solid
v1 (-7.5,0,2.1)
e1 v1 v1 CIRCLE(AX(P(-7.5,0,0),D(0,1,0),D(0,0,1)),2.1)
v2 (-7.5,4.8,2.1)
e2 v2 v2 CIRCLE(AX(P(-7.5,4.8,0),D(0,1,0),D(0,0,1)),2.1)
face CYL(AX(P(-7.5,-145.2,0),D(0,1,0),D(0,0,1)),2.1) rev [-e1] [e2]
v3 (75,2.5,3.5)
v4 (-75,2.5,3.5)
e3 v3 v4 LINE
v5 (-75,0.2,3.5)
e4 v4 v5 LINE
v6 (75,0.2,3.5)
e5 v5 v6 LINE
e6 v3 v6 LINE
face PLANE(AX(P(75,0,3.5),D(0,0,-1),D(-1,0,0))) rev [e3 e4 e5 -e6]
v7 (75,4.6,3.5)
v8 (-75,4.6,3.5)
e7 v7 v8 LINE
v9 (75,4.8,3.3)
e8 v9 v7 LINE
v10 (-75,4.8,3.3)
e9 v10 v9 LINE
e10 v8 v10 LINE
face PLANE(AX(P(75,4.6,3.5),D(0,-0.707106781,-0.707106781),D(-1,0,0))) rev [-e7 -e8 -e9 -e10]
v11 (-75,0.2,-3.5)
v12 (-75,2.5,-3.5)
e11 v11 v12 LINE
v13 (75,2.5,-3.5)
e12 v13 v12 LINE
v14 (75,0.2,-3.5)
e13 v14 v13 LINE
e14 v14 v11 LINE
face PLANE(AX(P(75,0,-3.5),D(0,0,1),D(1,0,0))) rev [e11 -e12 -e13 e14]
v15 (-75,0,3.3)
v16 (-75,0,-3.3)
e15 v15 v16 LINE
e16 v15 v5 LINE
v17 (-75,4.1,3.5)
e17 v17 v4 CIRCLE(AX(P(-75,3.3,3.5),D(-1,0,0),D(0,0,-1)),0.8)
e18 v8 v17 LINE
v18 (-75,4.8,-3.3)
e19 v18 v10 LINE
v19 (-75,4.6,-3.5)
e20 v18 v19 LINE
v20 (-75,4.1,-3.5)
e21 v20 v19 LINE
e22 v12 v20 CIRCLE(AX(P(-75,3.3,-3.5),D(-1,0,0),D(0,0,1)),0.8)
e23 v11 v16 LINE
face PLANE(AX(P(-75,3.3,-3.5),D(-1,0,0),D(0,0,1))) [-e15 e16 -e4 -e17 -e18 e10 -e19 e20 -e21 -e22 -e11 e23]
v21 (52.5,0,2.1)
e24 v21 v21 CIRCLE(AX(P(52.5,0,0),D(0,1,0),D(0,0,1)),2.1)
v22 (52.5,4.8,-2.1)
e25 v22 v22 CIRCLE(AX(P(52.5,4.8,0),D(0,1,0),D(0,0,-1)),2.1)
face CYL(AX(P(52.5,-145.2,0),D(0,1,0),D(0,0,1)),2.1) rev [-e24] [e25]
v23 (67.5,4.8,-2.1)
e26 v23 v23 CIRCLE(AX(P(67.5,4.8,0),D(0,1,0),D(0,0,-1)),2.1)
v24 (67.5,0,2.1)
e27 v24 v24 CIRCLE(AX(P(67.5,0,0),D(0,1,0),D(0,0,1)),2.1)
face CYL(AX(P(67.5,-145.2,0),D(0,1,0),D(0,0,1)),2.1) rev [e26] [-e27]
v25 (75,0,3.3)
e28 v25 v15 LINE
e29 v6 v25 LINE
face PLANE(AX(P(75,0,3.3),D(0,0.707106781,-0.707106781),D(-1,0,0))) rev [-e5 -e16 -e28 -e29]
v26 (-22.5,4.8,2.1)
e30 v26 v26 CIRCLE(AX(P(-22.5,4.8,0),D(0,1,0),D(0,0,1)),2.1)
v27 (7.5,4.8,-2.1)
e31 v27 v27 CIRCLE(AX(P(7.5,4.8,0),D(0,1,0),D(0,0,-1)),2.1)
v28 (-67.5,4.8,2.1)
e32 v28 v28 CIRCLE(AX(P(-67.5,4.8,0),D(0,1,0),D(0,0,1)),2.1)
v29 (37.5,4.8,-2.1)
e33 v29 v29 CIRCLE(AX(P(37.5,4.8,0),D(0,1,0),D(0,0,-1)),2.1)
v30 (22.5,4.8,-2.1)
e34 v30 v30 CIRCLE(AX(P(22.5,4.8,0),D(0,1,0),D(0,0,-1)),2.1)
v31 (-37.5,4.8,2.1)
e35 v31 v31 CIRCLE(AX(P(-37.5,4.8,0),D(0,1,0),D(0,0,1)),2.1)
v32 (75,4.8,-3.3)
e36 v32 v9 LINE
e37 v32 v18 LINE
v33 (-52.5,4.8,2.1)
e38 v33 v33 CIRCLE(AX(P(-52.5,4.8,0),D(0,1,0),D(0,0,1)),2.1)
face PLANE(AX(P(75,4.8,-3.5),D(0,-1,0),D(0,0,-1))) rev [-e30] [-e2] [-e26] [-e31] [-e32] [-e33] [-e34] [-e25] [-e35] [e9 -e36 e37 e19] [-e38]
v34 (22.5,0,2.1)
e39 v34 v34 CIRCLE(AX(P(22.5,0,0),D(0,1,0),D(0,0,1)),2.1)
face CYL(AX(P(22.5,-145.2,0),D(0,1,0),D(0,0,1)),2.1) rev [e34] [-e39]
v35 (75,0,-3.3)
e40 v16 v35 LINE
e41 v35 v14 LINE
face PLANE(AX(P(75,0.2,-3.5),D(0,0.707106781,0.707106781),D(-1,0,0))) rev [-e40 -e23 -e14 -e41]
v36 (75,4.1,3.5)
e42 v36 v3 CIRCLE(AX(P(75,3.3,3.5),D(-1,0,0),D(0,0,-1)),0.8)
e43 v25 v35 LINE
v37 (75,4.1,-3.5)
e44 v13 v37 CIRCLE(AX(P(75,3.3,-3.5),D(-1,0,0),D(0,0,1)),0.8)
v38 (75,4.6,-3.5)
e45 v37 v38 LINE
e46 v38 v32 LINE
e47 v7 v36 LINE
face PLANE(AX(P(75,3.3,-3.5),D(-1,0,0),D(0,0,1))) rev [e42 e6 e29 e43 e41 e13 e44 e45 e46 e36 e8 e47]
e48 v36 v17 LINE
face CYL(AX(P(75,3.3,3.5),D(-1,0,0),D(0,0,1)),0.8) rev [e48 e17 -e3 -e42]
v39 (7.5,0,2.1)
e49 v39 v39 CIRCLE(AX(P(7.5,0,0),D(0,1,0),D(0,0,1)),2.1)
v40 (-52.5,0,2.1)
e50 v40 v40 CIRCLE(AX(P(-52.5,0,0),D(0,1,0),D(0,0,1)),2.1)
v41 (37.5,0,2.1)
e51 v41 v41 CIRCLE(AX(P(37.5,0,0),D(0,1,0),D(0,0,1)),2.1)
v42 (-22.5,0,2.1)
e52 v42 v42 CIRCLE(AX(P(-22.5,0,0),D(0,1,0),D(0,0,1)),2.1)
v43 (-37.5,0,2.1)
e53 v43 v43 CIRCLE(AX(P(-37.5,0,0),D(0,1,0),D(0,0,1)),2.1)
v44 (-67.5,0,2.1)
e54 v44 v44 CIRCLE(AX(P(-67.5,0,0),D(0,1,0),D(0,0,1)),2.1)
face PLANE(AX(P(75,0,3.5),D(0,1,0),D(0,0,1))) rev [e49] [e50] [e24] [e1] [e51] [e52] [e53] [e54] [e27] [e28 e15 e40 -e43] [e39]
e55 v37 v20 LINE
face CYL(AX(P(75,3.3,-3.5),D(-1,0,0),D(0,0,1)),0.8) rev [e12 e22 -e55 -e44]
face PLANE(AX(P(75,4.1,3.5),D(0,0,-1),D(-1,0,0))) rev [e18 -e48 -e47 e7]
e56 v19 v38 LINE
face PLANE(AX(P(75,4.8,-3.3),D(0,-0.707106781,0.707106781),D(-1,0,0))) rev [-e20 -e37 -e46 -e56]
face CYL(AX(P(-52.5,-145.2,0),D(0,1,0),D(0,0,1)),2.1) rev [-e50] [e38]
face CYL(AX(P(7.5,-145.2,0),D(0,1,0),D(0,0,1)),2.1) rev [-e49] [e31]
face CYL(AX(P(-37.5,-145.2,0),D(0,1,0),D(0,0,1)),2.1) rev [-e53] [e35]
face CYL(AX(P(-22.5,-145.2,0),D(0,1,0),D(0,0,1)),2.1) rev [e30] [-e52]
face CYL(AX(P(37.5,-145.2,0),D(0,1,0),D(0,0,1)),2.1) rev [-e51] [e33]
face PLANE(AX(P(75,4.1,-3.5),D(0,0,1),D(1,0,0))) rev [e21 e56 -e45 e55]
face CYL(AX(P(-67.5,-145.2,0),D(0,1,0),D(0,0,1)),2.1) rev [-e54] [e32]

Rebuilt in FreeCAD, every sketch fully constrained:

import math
import FreeCAD as App
import Part
import Sketcher
from FreeCAD import Vector
Q = App.Units.Quantity


def edges_at(feature, points):
    """Names of the edges that pass closest to the given points."""
    edges = feature.Shape.Edges
    near = lambda p: min(range(len(edges)), key=lambda i: edges[i].distToShape(Part.Vertex(*p))[0])
    return sorted({f"Edge{near(p) + 1}" for p in points})

doc = App.newDocument("Part")
body = doc.addObject("PartDesign::Body", "Body")

# Sketch on YZ plane
sketch1 = doc.addObject("Sketcher::SketchObject", "Sketch")
body.addObject(sketch1)
sketch1.AttachmentSupport = (doc.YZ_Plane, [""])
sketch1.MapMode = "FlatFace"
sketch1.addGeometry([
    Part.LineSegment(Vector(0, 3.5, 0), Vector(0, -3.5, 0)),  # 0
    Part.LineSegment(Vector(0, -3.5, 0), Vector(2.5, -3.5, 0)),  # 1
    Part.ArcOfCircle(Part.Circle(Vector(3.3, -3.5, 0), Vector(0, 0, 1), 0.8), math.radians(0), math.radians(180)),  # 2
    Part.LineSegment(Vector(4.1, -3.5, 0), Vector(4.8, -3.5, 0)),  # 3
    Part.LineSegment(Vector(4.8, -3.5, 0), Vector(4.8, 3.5, 0)),  # 4
    Part.LineSegment(Vector(4.8, 3.5, 0), Vector(4.1, 3.5, 0)),  # 5
    Part.ArcOfCircle(Part.Circle(Vector(3.3, 3.5, 0), Vector(0, 0, 1), 0.8), math.radians(180), math.radians(360)),  # 6
    Part.LineSegment(Vector(2.5, 3.5, 0), Vector(0, 3.5, 0)),  # 7
], False)
sketch1.addConstraint([
    Sketcher.Constraint("Coincident", 0, 2, 1, 1),
    Sketcher.Constraint("Coincident", 1, 2, 2, 2),
    Sketcher.Constraint("Coincident", 2, 1, 3, 1),
    Sketcher.Constraint("Coincident", 3, 2, 4, 1),
    Sketcher.Constraint("Coincident", 4, 2, 5, 1),
    Sketcher.Constraint("Coincident", 5, 2, 6, 2),
    Sketcher.Constraint("Coincident", 6, 1, 7, 1),
    Sketcher.Constraint("Coincident", 7, 2, 0, 1),
    Sketcher.Constraint("Vertical", 0),
    Sketcher.Constraint("Horizontal", 1),
    Sketcher.Constraint("Horizontal", 3),
    Sketcher.Constraint("Vertical", 4),
    Sketcher.Constraint("Horizontal", 5),
    Sketcher.Constraint("Horizontal", 7),
    Sketcher.Constraint("Equal", 2, 6),
    Sketcher.Constraint("Symmetric", 0, 2, 7, 2, -1, 1),
    Sketcher.Constraint("Symmetric", 2, 3, 6, 3, -1),
    Sketcher.Constraint("Horizontal", 2, 3, 0, 2),
    Sketcher.Constraint("Horizontal", 1, 2, 2, 1),
    Sketcher.Constraint("Horizontal", 6, 3, 4, 2),
    Sketcher.Constraint("Radius", 2, Q("0.8 mm")),
    Sketcher.Constraint("DistanceY", 0, 2, 0, 1, Q("7 mm")),
    Sketcher.Constraint("DistanceX", 1, 1, 1, 2, Q("2.5 mm")),
    Sketcher.Constraint("DistanceX", 3, 1, 3, 2, Q("0.7 mm")),
])
pad1 = doc.addObject("PartDesign::Pad", "Pad")
body.addObject(pad1)
pad1.Profile = sketch1
pad1.Length = 150
pad1.Midplane = True
doc.recompute()

chamfer = doc.addObject("PartDesign::Chamfer", "Chamfer")
body.addObject(chamfer)
chamfer.Base = (pad1, edges_at(pad1, [
    (0, 0, -3.5),
    (0, 0, 3.5),
    (0, 4.8, 3.5),
    (0, 4.8, -3.5),
]))
chamfer.Size = 0.2

# Sketch on XZ plane
sketch2 = doc.addObject("Sketcher::SketchObject", "Sketch001")
body.addObject(sketch2)
sketch2.AttachmentSupport = (doc.XZ_Plane, [""])
sketch2.MapMode = "FlatFace"
sketch2.AttachmentOffset = App.Placement(Vector(0, 0, -4.8), App.Rotation())
sketch2.addGeometry([
    Part.Circle(Vector(-7.5, 0, 0), Vector(0, 0, 1), 2.1),  # 0
    Part.Circle(Vector(-22.5, 0, 0), Vector(0, 0, 1), 2.1),  # 1
    Part.Circle(Vector(-37.5, 0, 0), Vector(0, 0, 1), 2.1),  # 2
    Part.Circle(Vector(-52.5, 0, 0), Vector(0, 0, 1), 2.1),  # 3
    Part.Circle(Vector(-67.5, 0, 0), Vector(0, 0, 1), 2.1),  # 4
    Part.Circle(Vector(67.5, 0, 0), Vector(0, 0, 1), 2.1),  # 5
    Part.Circle(Vector(52.5, 0, 0), Vector(0, 0, 1), 2.1),  # 6
    Part.Circle(Vector(37.5, 0, 0), Vector(0, 0, 1), 2.1),  # 7
    Part.Circle(Vector(22.5, 0, 0), Vector(0, 0, 1), 2.1),  # 8
    Part.Circle(Vector(7.5, 0, 0), Vector(0, 0, 1), 2.1),  # 9
], False)
sketch2.addConstraint([
    Sketcher.Constraint("Equal", 0, 1),
    Sketcher.Constraint("Equal", 1, 2),
    Sketcher.Constraint("Equal", 2, 3),
    Sketcher.Constraint("Equal", 3, 4),
    Sketcher.Constraint("Equal", 4, 5),
    Sketcher.Constraint("Equal", 5, 6),
    Sketcher.Constraint("Equal", 6, 7),
    Sketcher.Constraint("Equal", 7, 8),
    Sketcher.Constraint("Equal", 8, 9),
    Sketcher.Constraint("Symmetric", 4, 3, 5, 3, -1, 1),
    Sketcher.Constraint("Symmetric", 3, 3, 6, 3, -1, 1),
    Sketcher.Constraint("Symmetric", 2, 3, 7, 3, -1, 1),
    Sketcher.Constraint("Symmetric", 1, 3, 8, 3, -1, 1),
    Sketcher.Constraint("Symmetric", 0, 3, 9, 3, -1, 1),
    Sketcher.Constraint("PointOnObject", 0, 3, -1),
    Sketcher.Constraint("PointOnObject", 1, 3, -1),
    Sketcher.Constraint("PointOnObject", 2, 3, -1),
    Sketcher.Constraint("PointOnObject", 3, 3, -1),
    Sketcher.Constraint("PointOnObject", 4, 3, -1),
    Sketcher.Constraint("Diameter", 0, Q("4.2 mm")),
    Sketcher.Constraint("DistanceX", 1, 3, 0, 3, Q("15 mm")),
    Sketcher.Constraint("DistanceX", 2, 3, 1, 3, Q("15 mm")),
    Sketcher.Constraint("DistanceX", 3, 3, 2, 3, Q("15 mm")),
    Sketcher.Constraint("DistanceX", 4, 3, 3, 3, Q("15 mm")),
    Sketcher.Constraint("DistanceX", 0, 3, 5, 3, Q("75 mm")),
])
pocket1 = doc.addObject("PartDesign::Pocket", "Pocket")
body.addObject(pocket1)
pocket1.Profile = sketch2
pocket1.Length = 150
pocket1.Reversed = True

doc.recompute()
